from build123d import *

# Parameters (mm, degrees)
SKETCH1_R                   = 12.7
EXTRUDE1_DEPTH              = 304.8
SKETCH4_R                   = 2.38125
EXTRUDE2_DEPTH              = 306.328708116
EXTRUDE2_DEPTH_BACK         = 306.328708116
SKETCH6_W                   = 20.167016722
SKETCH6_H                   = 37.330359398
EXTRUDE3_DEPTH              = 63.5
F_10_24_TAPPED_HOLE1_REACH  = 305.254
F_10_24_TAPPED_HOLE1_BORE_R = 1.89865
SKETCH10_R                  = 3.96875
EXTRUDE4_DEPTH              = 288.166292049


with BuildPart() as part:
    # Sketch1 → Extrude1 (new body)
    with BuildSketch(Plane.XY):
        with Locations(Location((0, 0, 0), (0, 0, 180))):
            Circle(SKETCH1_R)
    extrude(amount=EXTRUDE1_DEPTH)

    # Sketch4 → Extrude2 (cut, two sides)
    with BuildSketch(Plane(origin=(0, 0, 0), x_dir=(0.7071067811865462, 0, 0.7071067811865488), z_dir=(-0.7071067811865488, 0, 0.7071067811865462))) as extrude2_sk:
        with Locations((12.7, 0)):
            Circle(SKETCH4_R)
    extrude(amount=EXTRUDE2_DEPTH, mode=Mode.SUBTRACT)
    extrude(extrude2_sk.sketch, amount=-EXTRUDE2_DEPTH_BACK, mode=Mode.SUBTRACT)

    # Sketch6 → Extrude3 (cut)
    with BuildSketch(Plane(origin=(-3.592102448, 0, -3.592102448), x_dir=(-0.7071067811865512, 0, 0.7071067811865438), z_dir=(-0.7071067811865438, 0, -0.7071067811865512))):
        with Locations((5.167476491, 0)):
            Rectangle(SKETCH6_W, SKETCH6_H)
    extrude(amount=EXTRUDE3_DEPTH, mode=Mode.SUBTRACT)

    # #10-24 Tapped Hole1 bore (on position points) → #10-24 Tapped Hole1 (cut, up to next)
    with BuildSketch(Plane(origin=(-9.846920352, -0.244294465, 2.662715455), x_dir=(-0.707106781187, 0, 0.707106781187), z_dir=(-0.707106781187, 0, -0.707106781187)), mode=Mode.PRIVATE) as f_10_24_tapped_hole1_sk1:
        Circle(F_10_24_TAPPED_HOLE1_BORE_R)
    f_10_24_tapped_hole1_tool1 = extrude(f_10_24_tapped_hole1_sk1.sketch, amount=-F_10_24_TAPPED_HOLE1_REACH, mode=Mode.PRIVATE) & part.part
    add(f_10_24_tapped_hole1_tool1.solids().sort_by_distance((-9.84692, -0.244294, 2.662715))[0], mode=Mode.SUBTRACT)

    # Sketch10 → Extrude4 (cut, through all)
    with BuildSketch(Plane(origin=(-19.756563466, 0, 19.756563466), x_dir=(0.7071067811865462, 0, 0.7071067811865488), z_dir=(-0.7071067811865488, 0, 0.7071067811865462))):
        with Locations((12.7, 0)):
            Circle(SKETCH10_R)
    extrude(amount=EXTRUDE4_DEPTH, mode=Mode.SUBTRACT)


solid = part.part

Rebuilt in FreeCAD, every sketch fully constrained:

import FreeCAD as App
import Part
import Sketcher
from FreeCAD import Vector
Q = App.Units.Quantity

doc = App.newDocument("Part")
body = doc.addObject("PartDesign::Body", "Body")

sketch1 = body.newObject("Sketcher::SketchObject", "Sketch")
sketch1.AttachmentSupport = (doc.getObject("XY_Plane"), [""])
sketch1.MapMode = "FlatFace"
sketch1.addGeometry(Part.Circle(Vector(0, 0, 0), Vector(0, 0, 1), 12.7), False)
sketch1.addConstraint(Sketcher.Constraint("Coincident", 0, 3, -1, 1))
sketch1.addConstraint(Sketcher.Constraint("Diameter", 0, Q("1 in")))
pad1 = body.newObject("PartDesign::Pad", "Pad")
pad1.Profile = sketch1
pad1.Length = Q("12 in")

sketch2 = body.newObject("Sketcher::SketchObject", "Sketch001")
sketch2.Placement = App.Placement(Vector(0, 0, 0), App.Rotation(Vector(0.707106781, 0, 0.707106781), Vector(0, 0.999999999, 0), Vector(-0.707106781, 0, 0.707106781), "ZXY"))
sketch2.addGeometry(Part.Circle(Vector(12.7, 0, 0), Vector(0, 0, 1), 2.38125), False)
sketch2.addConstraint(Sketcher.Constraint("PointOnObject", 0, 3, -1))
sketch2.addConstraint(Sketcher.Constraint("Diameter", 0, Q("0.1875 in")))
sketch2.addConstraint(Sketcher.Constraint("DistanceX", -1, 1, 0, 3, Q("0.5 in")))
pocket1 = body.newObject("PartDesign::Pocket", "Pocket")
pocket1.Profile = sketch2
pocket1.Type = "ThroughAll"
pocket1.Midplane = True

sketch3 = body.newObject("Sketcher::SketchObject", "Sketch002")
sketch3.Placement = App.Placement(Vector(-3.592102, 0, -3.592102), App.Rotation(Vector(-0.707106781, 0, 0.707106781), Vector(0, 0.999999999, 0), Vector(-0.707106781, 0, -0.707106781), "ZXY"))
sketch3.addGeometry(Part.LineSegment(Vector(-4.916032, 18.66518, 0), Vector(-4.916032, -18.66518, 0)), False)
sketch3.addGeometry(Part.LineSegment(Vector(-4.916032, -18.66518, 0), Vector(15.250985, -18.66518, 0)), False)
sketch3.addGeometry(Part.LineSegment(Vector(15.250985, -18.66518, 0), Vector(15.250985, 18.66518, 0)), False)
sketch3.addGeometry(Part.LineSegment(Vector(15.250985, 18.66518, 0), Vector(-4.916032, 18.66518, 0)), False)
sketch3.addConstraint(Sketcher.Constraint("Coincident", 0, 2, 1, 1))
sketch3.addConstraint(Sketcher.Constraint("Coincident", 1, 2, 2, 1))
sketch3.addConstraint(Sketcher.Constraint("Coincident", 2, 2, 3, 1))
sketch3.addConstraint(Sketcher.Constraint("Coincident", 3, 2, 0, 1))
sketch3.addConstraint(Sketcher.Constraint("Vertical", 0))
sketch3.addConstraint(Sketcher.Constraint("Horizontal", 1))
sketch3.addConstraint(Sketcher.Constraint("Vertical", 2))
sketch3.addConstraint(Sketcher.Constraint("Horizontal", 3))
sketch3.addConstraint(Sketcher.Constraint("DistanceY", 0, 2, 0, 1, 37.330359))
sketch3.addConstraint(Sketcher.Constraint("DistanceX", 1, 1, 1, 2, 20.167017))
sketch3.addConstraint(Sketcher.Constraint("DistanceX", 0, 2, -1, 1, 4.916032))
sketch3.addConstraint(Sketcher.Constraint("DistanceY", 0, 2, -1, 1, 18.66518))
pocket2 = body.newObject("PartDesign::Pocket", "Pocket001")
pocket2.Profile = sketch3
pocket2.Length = Q("2.5 in")
pocket2.Reversed = True

sketch4 = body.newObject("Sketcher::SketchObject", "Sketch003")
sketch4.Placement = App.Placement(Vector(-9.84692, -0.244294, 2.662715), App.Rotation(Vector(-0.707106781, 0, 0.707106781), Vector(0, 0.999999999, 0), Vector(-0.707106781, 0, -0.707106781), "ZXY"))
sketch4.addGeometry(Part.Circle(Vector(0, 0, 0), Vector(0, 0, 1), 1.89865), False)
sketch4.addConstraint(Sketcher.Constraint("Coincident", 0, 3, -1, 1))
sketch4.addConstraint(Sketcher.Constraint("Diameter", 0, Q("0.1495 in")))
pocket3 = body.newObject("PartDesign::Pocket", "Pocket002")
pocket3.Profile = sketch4
pocket3.Type = "UpToFirst"

sketch5 = body.newObject("Sketcher::SketchObject", "Sketch004")
sketch5.Placement = App.Placement(Vector(-19.756563, 0, 19.756563), App.Rotation(Vector(0.707106781, 0, 0.707106781), Vector(0, 0.999999999, 0), Vector(-0.707106781, 0, 0.707106781), "ZXY"))
sketch5.addGeometry(Part.Circle(Vector(12.7, 0, 0), Vector(0, 0, 1), 3.96875), False)
sketch5.addConstraint(Sketcher.Constraint("PointOnObject", 0, 3, -1))
sketch5.addConstraint(Sketcher.Constraint("Diameter", 0, Q("0.3125 in")))
sketch5.addConstraint(Sketcher.Constraint("DistanceX", -1, 1, 0, 3, Q("0.5 in")))
pocket4 = body.newObject("PartDesign::Pocket", "Pocket003")
pocket4.Profile = sketch5
pocket4.Type = "ThroughAll"
pocket4.Reversed = True

doc.recompute()
